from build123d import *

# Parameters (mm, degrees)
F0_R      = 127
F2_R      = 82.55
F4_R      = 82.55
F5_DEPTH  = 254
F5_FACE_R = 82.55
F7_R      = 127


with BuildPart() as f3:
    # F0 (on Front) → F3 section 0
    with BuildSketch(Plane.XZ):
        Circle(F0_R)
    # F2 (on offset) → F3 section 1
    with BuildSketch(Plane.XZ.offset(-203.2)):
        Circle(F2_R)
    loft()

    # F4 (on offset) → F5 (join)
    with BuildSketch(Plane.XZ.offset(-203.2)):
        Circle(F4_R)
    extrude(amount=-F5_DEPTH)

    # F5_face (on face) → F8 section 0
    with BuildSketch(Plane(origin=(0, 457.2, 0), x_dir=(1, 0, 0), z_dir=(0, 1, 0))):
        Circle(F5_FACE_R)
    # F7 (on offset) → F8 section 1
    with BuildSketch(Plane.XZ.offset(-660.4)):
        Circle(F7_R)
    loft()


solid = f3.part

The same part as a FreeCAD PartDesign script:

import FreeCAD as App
import Part
import Sketcher
Q = App.Units.Quantity

doc = App.newDocument("Part")
body = doc.addObject("PartDesign::Body", "Body")

# Sketch on XZ plane
sketch1 = body.newObject("Sketcher::SketchObject", "Sketch")
sketch1.AttachmentSupport = (doc.getObject("XZ_Plane"), [""])
sketch1.MapMode = "FlatFace"
sketch1.addGeometry(Part.Circle(App.Vector(0, 0, 0), App.Vector(0, 0, 1), 127), False)
sketch1.addConstraint([
    Sketcher.Constraint("Coincident", 0, 3, -1, 1),
    Sketcher.Constraint("Diameter", 0, Q("10 in")),
])

# Sketch on XZ plane
sketch2 = body.newObject("Sketcher::SketchObject", "Sketch001")
sketch2.AttachmentSupport = (doc.getObject("XZ_Plane"), [""])
sketch2.MapMode = "FlatFace"
sketch2.AttachmentOffset = App.Placement(App.Vector(0, 0, -8 * 25.4), App.Rotation())
sketch2.addGeometry(Part.Circle(App.Vector(0, 0, 0), App.Vector(0, 0, 1), 83), False)
sketch2.addConstraint([
    Sketcher.Constraint("Coincident", 0, 3, -1, 1),
    Sketcher.Constraint("Diameter", 0, Q("6.5 in")),
])

additiveloft = body.newObject("PartDesign::AdditiveLoft", "AdditiveLoft")
additiveloft.Profile = sketch1
additiveloft.Sections = [sketch2]

# Sketch on XZ plane
sketch3 = body.newObject("Sketcher::SketchObject", "Sketch002")
sketch3.AttachmentSupport = (doc.getObject("XZ_Plane"), [""])
sketch3.MapMode = "FlatFace"
sketch3.AttachmentOffset = App.Placement(App.Vector(0, 0, -8 * 25.4), App.Rotation())
sketch3.addGeometry(Part.Circle(App.Vector(0, 0, 0), App.Vector(0, 0, 1), 83), False)
sketch3.addConstraint([
    Sketcher.Constraint("Coincident", 0, 3, -1, 1),
    Sketcher.Constraint("Diameter", 0, Q("6.5 in")),
])
pad1 = body.newObject("PartDesign::Pad", "Pad")
pad1.Profile = sketch3
pad1.Length = Q("10 in")
pad1.Reversed = True

# Sketch on XZ plane
sketch4 = body.newObject("Sketcher::SketchObject", "Sketch003")
sketch4.AttachmentSupport = (doc.getObject("XZ_Plane"), [""])
sketch4.MapMode = "FlatFace"
sketch4.AttachmentOffset = App.Placement(App.Vector(0, 0, -18 * 25.4), App.Rotation())
sketch4.addGeometry(Part.Circle(App.Vector(0, 0, 0), App.Vector(0, 0, 1), 83), False)
sketch4.addConstraint([
    Sketcher.Constraint("Coincident", 0, 3, -1, 1),
    Sketcher.Constraint("Diameter", 0, Q("6.5 in")),
])

# Sketch on XZ plane
sketch5 = body.newObject("Sketcher::SketchObject", "Sketch004")
sketch5.AttachmentSupport = (doc.getObject("XZ_Plane"), [""])
sketch5.MapMode = "FlatFace"
sketch5.AttachmentOffset = App.Placement(App.Vector(0, 0, -26 * 25.4), App.Rotation())
sketch5.addGeometry(Part.Circle(App.Vector(0, 0, 0), App.Vector(0, 0, 1), 127), False)
sketch5.addConstraint([
    Sketcher.Constraint("Coincident", 0, 3, -1, 1),
    Sketcher.Constraint("Diameter", 0, Q("10 in")),
])

additiveloft2 = body.newObject("PartDesign::AdditiveLoft", "AdditiveLoft001")
additiveloft2.Profile = sketch4
additiveloft2.Sections = [sketch5]

doc.recompute()
